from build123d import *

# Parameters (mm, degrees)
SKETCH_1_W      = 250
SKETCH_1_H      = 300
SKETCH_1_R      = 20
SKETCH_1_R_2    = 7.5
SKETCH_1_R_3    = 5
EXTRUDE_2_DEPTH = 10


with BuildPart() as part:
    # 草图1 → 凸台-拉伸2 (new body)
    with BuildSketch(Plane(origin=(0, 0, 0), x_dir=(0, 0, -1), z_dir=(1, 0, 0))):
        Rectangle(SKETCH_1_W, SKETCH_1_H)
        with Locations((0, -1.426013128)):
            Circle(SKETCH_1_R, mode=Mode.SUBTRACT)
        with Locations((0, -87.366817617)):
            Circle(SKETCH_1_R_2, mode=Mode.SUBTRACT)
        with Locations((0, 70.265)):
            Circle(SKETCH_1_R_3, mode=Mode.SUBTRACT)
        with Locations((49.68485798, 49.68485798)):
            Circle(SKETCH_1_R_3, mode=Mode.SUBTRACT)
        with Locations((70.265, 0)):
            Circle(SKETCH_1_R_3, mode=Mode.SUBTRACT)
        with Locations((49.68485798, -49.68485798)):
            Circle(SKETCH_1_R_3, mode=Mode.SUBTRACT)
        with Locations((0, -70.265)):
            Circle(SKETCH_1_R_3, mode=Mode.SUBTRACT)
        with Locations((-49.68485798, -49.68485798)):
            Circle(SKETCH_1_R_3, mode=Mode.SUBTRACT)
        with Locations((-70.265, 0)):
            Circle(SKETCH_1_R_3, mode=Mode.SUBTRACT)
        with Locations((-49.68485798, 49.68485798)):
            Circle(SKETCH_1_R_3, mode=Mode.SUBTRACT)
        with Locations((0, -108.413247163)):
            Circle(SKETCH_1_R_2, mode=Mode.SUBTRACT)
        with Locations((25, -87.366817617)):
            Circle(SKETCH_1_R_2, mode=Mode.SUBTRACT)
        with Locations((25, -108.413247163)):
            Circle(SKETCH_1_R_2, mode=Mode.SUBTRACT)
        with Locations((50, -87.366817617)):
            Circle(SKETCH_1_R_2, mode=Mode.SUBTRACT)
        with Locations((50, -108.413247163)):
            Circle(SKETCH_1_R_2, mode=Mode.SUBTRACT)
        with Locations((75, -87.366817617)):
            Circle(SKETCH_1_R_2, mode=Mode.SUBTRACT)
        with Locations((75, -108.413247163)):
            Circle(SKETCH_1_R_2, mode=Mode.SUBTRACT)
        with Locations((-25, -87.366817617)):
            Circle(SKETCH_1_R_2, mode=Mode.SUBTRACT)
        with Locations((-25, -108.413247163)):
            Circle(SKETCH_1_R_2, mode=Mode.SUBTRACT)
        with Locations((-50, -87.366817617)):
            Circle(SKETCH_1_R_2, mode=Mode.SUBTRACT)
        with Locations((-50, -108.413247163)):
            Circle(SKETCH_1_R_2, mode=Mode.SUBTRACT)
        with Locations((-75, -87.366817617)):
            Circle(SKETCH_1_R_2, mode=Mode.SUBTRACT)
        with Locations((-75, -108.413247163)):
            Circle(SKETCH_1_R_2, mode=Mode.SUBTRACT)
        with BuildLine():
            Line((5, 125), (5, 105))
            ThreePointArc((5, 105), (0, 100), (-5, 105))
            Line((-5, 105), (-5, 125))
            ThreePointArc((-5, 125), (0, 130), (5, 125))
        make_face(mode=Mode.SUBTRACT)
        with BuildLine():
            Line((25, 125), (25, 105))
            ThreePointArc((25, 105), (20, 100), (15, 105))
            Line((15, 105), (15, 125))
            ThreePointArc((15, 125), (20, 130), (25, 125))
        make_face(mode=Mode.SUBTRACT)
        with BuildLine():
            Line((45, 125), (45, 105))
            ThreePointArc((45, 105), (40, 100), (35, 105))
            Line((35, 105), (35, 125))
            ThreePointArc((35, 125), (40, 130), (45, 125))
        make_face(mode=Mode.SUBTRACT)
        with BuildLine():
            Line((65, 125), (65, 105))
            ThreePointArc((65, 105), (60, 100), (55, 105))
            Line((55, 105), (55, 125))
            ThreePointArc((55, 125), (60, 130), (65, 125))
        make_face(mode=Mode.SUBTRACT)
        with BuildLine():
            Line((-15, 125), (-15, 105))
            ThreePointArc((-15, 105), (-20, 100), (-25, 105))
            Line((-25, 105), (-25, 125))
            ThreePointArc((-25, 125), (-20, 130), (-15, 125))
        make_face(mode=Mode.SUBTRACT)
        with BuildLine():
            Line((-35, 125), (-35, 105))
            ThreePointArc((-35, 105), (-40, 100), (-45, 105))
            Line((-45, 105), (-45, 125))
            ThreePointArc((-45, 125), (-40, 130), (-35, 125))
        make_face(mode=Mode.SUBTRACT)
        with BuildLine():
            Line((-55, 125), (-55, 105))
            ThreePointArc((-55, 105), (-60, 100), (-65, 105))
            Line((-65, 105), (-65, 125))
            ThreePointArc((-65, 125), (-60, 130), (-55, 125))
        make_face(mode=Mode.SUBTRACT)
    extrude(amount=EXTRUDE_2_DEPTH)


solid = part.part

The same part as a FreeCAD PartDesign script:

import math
import FreeCAD as App
import Part
import Sketcher
from FreeCAD import Vector

doc = App.newDocument("Part")
body = doc.addObject("PartDesign::Body", "Body")

sketch1 = doc.addObject("Sketcher::SketchObject", "Sketch")
body.addObject(sketch1)
sketch1.AttachmentSupport = (doc.YZ_Plane, [""])
sketch1.MapMode = "FlatFace"
sketch1.addGeometry([
    Part.LineSegment(Vector(150, 125, 0), Vector(-150, 125, 0)),
    Part.LineSegment(Vector(-150, 125, 0), Vector(-150, -125, 0)),
    Part.LineSegment(Vector(-150, -125, 0), Vector(150, -125, 0)),
    Part.LineSegment(Vector(150, -125, 0), Vector(150, 125, 0)),
    Part.Circle(Vector(-108, 75, 0), Vector(0, 0, 1), 8),
    Part.Circle(Vector(-87, 75, 0), Vector(0, 0, 1), 8),
    Part.Circle(Vector(-108, 50, 0), Vector(0, 0, 1), 8),
    Part.Circle(Vector(-87, 50, 0), Vector(0, 0, 1), 8),
    Part.Circle(Vector(-108, 25, 0), Vector(0, 0, 1), 8),
    Part.Circle(Vector(-87, 25, 0), Vector(0, 0, 1), 8),
    Part.Circle(Vector(-50, 50, 0), Vector(0, 0, 1), 5),
    Part.Circle(Vector(0, 70, 0), Vector(0, 0, 1), 5),
    Part.Circle(Vector(-108, 0, 0), Vector(0, 0, 1), 8),
    Part.Circle(Vector(-87, 0, 0), Vector(0, 0, 1), 8),
    Part.Circle(Vector(-108, -25, 0), Vector(0, 0, 1), 8),
    Part.Circle(Vector(-87, -25, 0), Vector(0, 0, 1), 8),
    Part.Circle(Vector(-70, 0, 0), Vector(0, 0, 1), 5),
    Part.Circle(Vector(-108, -50, 0), Vector(0, 0, 1), 8),
    Part.Circle(Vector(-87, -50, 0), Vector(0, 0, 1), 8),
    Part.Circle(Vector(-108, -75, 0), Vector(0, 0, 1), 8),
    Part.Circle(Vector(-87, -75, 0), Vector(0, 0, 1), 8),
    Part.Circle(Vector(-1, 0, 0), Vector(0, 0, 1), 20),
    Part.Circle(Vector(-50, -50, 0), Vector(0, 0, 1), 5),
    Part.Circle(Vector(0, -70, 0), Vector(0, 0, 1), 5),
    Part.Circle(Vector(50, 50, 0), Vector(0, 0, 1), 5),
    Part.ArcOfCircle(Part.Circle(Vector(125, 60, 0), Vector(0, 0, 1), 5), math.radians(-90), math.radians(90)),
    Part.LineSegment(Vector(125, 55, 0), Vector(105, 55, 0)),
    Part.ArcOfCircle(Part.Circle(Vector(105, 60, 0), Vector(0, 0, 1), 5), math.radians(90), math.radians(270)),
    Part.LineSegment(Vector(105, 65, 0), Vector(125, 65, 0)),
    Part.ArcOfCircle(Part.Circle(Vector(125, 40, 0), Vector(0, 0, 1), 5), math.radians(-90), math.radians(90)),
    Part.LineSegment(Vector(125, 35, 0), Vector(105, 35, 0)),
    Part.ArcOfCircle(Part.Circle(Vector(105, 40, 0), Vector(0, 0, 1), 5), math.radians(90), math.radians(270)),
    Part.LineSegment(Vector(105, 45, 0), Vector(125, 45, 0)),
    Part.ArcOfCircle(Part.Circle(Vector(125, 20, 0), Vector(0, 0, 1), 5), math.radians(-90), math.radians(90)),
    Part.LineSegment(Vector(125, 15, 0), Vector(105, 15, 0)),
    Part.ArcOfCircle(Part.Circle(Vector(105, 20, 0), Vector(0, 0, 1), 5), math.radians(90), math.radians(270)),
    Part.LineSegment(Vector(105, 25, 0), Vector(125, 25, 0)),
    Part.Circle(Vector(50, -50, 0), Vector(0, 0, 1), 5),
    Part.Circle(Vector(70, 0, 0), Vector(0, 0, 1), 5),
    Part.ArcOfCircle(Part.Circle(Vector(125, 0, 0), Vector(0, 0, 1), 5), math.radians(-90), math.radians(90)),
    Part.LineSegment(Vector(125, -5, 0), Vector(105, -5, 0)),
    Part.ArcOfCircle(Part.Circle(Vector(105, 0, 0), Vector(0, 0, 1), 5), math.radians(90), math.radians(270)),
    Part.LineSegment(Vector(105, 5, 0), Vector(125, 5, 0)),
    Part.ArcOfCircle(Part.Circle(Vector(125, -20, 0), Vector(0, 0, 1), 5), math.radians(-90), math.radians(90)),
    Part.LineSegment(Vector(125, -25, 0), Vector(105, -25, 0)),
    Part.ArcOfCircle(Part.Circle(Vector(105, -20, 0), Vector(0, 0, 1), 5), math.radians(90), math.radians(270)),
    Part.LineSegment(Vector(105, -15, 0), Vector(125, -15, 0)),
    Part.ArcOfCircle(Part.Circle(Vector(125, -40, 0), Vector(0, 0, 1), 5), math.radians(-90), math.radians(90)),
    Part.LineSegment(Vector(125, -45, 0), Vector(105, -45, 0)),
    Part.ArcOfCircle(Part.Circle(Vector(105, -40, 0), Vector(0, 0, 1), 5), math.radians(90), math.radians(270)),
    Part.LineSegment(Vector(105, -35, 0), Vector(125, -35, 0)),
    Part.ArcOfCircle(Part.Circle(Vector(125, -60, 0), Vector(0, 0, 1), 5), math.radians(-90), math.radians(90)),
    Part.LineSegment(Vector(125, -65, 0), Vector(105, -65, 0)),
    Part.ArcOfCircle(Part.Circle(Vector(105, -60, 0), Vector(0, 0, 1), 5), math.radians(90), math.radians(270)),
    Part.LineSegment(Vector(105, -55, 0), Vector(125, -55, 0)),
], False)
sketch1.addConstraint([
    Sketcher.Constraint("Coincident", 0, 2, 1, 1),
    Sketcher.Constraint("Coincident", 1, 2, 2, 1),
    Sketcher.Constraint("Coincident", 2, 2, 3, 1),
    Sketcher.Constraint("Coincident", 3, 2, 0, 1),
    Sketcher.Constraint("Tangent", 25, 1, 26, 1),
    Sketcher.Constraint("Tangent", 26, 2, 27, 2),
    Sketcher.Constraint("Tangent", 27, 1, 28, 1),
    Sketcher.Constraint("Tangent", 28, 2, 25, 2),
    Sketcher.Constraint("Tangent", 29, 1, 30, 1),
    Sketcher.Constraint("Tangent", 30, 2, 31, 2),
    Sketcher.Constraint("Tangent", 31, 1, 32, 1),
    Sketcher.Constraint("Tangent", 32, 2, 29, 2),
    Sketcher.Constraint("Tangent", 33, 1, 34, 1),
    Sketcher.Constraint("Tangent", 34, 2, 35, 2),
    Sketcher.Constraint("Tangent", 35, 1, 36, 1),
    Sketcher.Constraint("Tangent", 36, 2, 33, 2),
    Sketcher.Constraint("Tangent", 39, 1, 40, 1),
    Sketcher.Constraint("Tangent", 40, 2, 41, 2),
    Sketcher.Constraint("Tangent", 41, 1, 42, 1),
    Sketcher.Constraint("Tangent", 42, 2, 39, 2),
    Sketcher.Constraint("Tangent", 43, 1, 44, 1),
    Sketcher.Constraint("Tangent", 44, 2, 45, 2),
    Sketcher.Constraint("Tangent", 45, 1, 46, 1),
    Sketcher.Constraint("Tangent", 46, 2, 43, 2),
    Sketcher.Constraint("Tangent", 47, 1, 48, 1),
    Sketcher.Constraint("Tangent", 48, 2, 49, 2),
    Sketcher.Constraint("Tangent", 49, 1, 50, 1),
    Sketcher.Constraint("Tangent", 50, 2, 47, 2),
    Sketcher.Constraint("Tangent", 51, 1, 52, 1),
    Sketcher.Constraint("Tangent", 52, 2, 53, 2),
    Sketcher.Constraint("Tangent", 53, 1, 54, 1),
    Sketcher.Constraint("Tangent", 54, 2, 51, 2),
    Sketcher.Constraint("Horizontal", 0),
    Sketcher.Constraint("Vertical", 1),
    Sketcher.Constraint("Horizontal", 2),
    Sketcher.Constraint("Vertical", 3),
    Sketcher.Constraint("Horizontal", 26),
    Sketcher.Constraint("Horizontal", 28),
    Sketcher.Constraint("Horizontal", 30),
    Sketcher.Constraint("Horizontal", 32),
    Sketcher.Constraint("Horizontal", 34),
    Sketcher.Constraint("Horizontal", 36),
    Sketcher.Constraint("Horizontal", 40),
    Sketcher.Constraint("Horizontal", 42),
    Sketcher.Constraint("Horizontal", 44),
    Sketcher.Constraint("Horizontal", 46),
    Sketcher.Constraint("Horizontal", 48),
    Sketcher.Constraint("Horizontal", 50),
    Sketcher.Constraint("Horizontal", 52),
    Sketcher.Constraint("Horizontal", 54),
    Sketcher.Constraint("Equal", 4, 5),
    Sketcher.Constraint("Equal", 5, 6),
    Sketcher.Constraint("Equal", 6, 7),
    Sketcher.Constraint("Equal", 7, 8),
    Sketcher.Constraint("Equal", 8, 9),
    Sketcher.Constraint("Equal", 10, 11),
    Sketcher.Constraint("Equal", 9, 12),
    Sketcher.Constraint("Equal", 12, 13),
    Sketcher.Constraint("Equal", 13, 14),
    Sketcher.Constraint("Equal", 14, 15),
    Sketcher.Constraint("Equal", 11, 16),
    Sketcher.Constraint("Equal", 15, 17),
    Sketcher.Constraint("Equal", 17, 18),
    Sketcher.Constraint("Equal", 18, 19),
    Sketcher.Constraint("Equal", 19, 20),
    Sketcher.Constraint("Equal", 16, 22),
    Sketcher.Constraint("Equal", 22, 23),
    Sketcher.Constraint("Equal", 23, 24),
    Sketcher.Constraint("Equal", 24, 25),
    Sketcher.Constraint("Equal", 27, 29),
    Sketcher.Constraint("Equal", 31, 33),
    Sketcher.Constraint("Equal", 35, 37),
    Sketcher.Constraint("Equal", 37, 38),
    Sketcher.Constraint("Equal", 38, 39),
    Sketcher.Constraint("Equal", 41, 43),
    Sketcher.Constraint("Equal", 45, 47),
    Sketcher.Constraint("Equal", 49, 51),
    Sketcher.Constraint("Symmetric", 11, 3, 23, 3, -1, 1),
    Sketcher.Constraint("Symmetric", 22, 3, 24, 3, -1, 1),
    Sketcher.Constraint("Symmetric", 10, 3, 37, 3, -1, 1),
    Sketcher.Constraint("Symmetric", 16, 3, 38, 3, -1, 1),
    Sketcher.Constraint("Symmetric", 0, 2, 2, 2, -1, 1),
    Sketcher.Constraint("Symmetric", 10, 3, 24, 3, -2),
    Sketcher.Constraint("Symmetric", 8, 3, 14, 3, -1),
    Sketcher.Constraint("Symmetric", 9, 3, 15, 3, -1),
    Sketcher.Constraint("Symmetric", 6, 3, 17, 3, -1),
    Sketcher.Constraint("Symmetric", 7, 3, 18, 3, -1),
    Sketcher.Constraint("Symmetric", 4, 3, 19, 3, -1),
    Sketcher.Constraint("Symmetric", 5, 3, 20, 3, -1),
    Sketcher.Constraint("Symmetric", 33, 3, 43, 3, -1),
    Sketcher.Constraint("Symmetric", 29, 3, 47, 3, -1),
    Sketcher.Constraint("Symmetric", 25, 3, 51, 3, -1),
    Sketcher.Constraint("PointOnObject", 11, 3, -2),
    Sketcher.Constraint("PointOnObject", 12, 3, -1),
    Sketcher.Constraint("PointOnObject", 13, 3, -1),
    Sketcher.Constraint("PointOnObject", 16, 3, -1),
    Sketcher.Constraint("PointOnObject", 21, 3, -1),
    Sketcher.Constraint("PointOnObject", 39, 3, -1),
    Sketcher.Constraint("Horizontal", 4, 3, 5, 3),
    Sketcher.Constraint("Horizontal", 6, 3, 7, 3),
    Sketcher.Constraint("Horizontal", 8, 3, 9, 3),
    Sketcher.Constraint("Horizontal", 9, 3, 35, 1),
    Sketcher.Constraint("Vertical", 4, 3, 6, 3),
    Sketcher.Constraint("Vertical", 5, 3, 7, 3),
    Sketcher.Constraint("Vertical", 6, 3, 8, 3),
    Sketcher.Constraint("Vertical", 7, 3, 9, 3),
    Sketcher.Constraint("Vertical", 8, 3, 12, 3),
    Sketcher.Constraint("Vertical", 9, 3, 13, 3),
    Sketcher.Constraint("Vertical", 25, 3, 29, 3),
    Sketcher.Constraint("Vertical", 27, 3, 31, 3),
    Sketcher.Constraint("Vertical", 29, 3, 33, 3),
    Sketcher.Constraint("Vertical", 31, 3, 35, 3),
    Sketcher.Constraint("Vertical", 33, 3, 39, 3),
    Sketcher.Constraint("Vertical", 35, 3, 41, 3),
    Sketcher.Constraint("Vertical", 41, 3, 45, 3),
    Sketcher.Constraint("Vertical", 45, 3, 49, 3),
    Sketcher.Constraint("Vertical", 49, 3, 53, 3),
    Sketcher.Constraint("Diameter", 4, 15.0),
    Sketcher.Constraint("Diameter", 10, 10.0),
    Sketcher.Constraint("Diameter", 21, 40.0),
    Sketcher.Constraint("DistanceX", 0, 2, 0, 1, 300.0),
    Sketcher.Constraint("DistanceX", 26, 2, 26, 1, 20.0),
    Sketcher.Constraint("DistanceY", 1, 2, 1, 1, 250.0),
    Sketcher.Constraint("DistanceY", -1, 1, 4, 3, 75.0),
    Sketcher.Constraint("DistanceY", -1, 1, 6, 3, 50.0),
    Sketcher.Constraint("DistanceY", -1, 1, 8, 3, 25.0),
    Sketcher.Constraint("DistanceX", -1, 1, 25, 3, 125.0),
    Sketcher.Constraint("DistanceY", -1, 1, 25, 3, 60.0),
    Sketcher.Constraint("DistanceY", -1, 1, 29, 3, 40.0),
    Sketcher.Constraint("DistanceY", -1, 1, 11, 3, 70.265),
    Sketcher.Constraint("DistanceX", 16, 3, -1, 1, 70.265),
    Sketcher.Constraint("DistanceX", 4, 3, -1, 1, 108.413247),
    Sketcher.Constraint("DistanceX", 5, 3, -1, 1, 87.366818),
    Sketcher.Constraint("DistanceX", 10, 3, -1, 1, 49.684858),
    Sketcher.Constraint("DistanceY", -1, 1, 10, 3, 49.684858),
    Sketcher.Constraint("DistanceX", 21, 3, -1, 1, 1.426013),
])
pad1 = doc.addObject("PartDesign::Pad", "Pad")
body.addObject(pad1)
pad1.Profile = sketch1
pad1.Length = 10

doc.recompute()
